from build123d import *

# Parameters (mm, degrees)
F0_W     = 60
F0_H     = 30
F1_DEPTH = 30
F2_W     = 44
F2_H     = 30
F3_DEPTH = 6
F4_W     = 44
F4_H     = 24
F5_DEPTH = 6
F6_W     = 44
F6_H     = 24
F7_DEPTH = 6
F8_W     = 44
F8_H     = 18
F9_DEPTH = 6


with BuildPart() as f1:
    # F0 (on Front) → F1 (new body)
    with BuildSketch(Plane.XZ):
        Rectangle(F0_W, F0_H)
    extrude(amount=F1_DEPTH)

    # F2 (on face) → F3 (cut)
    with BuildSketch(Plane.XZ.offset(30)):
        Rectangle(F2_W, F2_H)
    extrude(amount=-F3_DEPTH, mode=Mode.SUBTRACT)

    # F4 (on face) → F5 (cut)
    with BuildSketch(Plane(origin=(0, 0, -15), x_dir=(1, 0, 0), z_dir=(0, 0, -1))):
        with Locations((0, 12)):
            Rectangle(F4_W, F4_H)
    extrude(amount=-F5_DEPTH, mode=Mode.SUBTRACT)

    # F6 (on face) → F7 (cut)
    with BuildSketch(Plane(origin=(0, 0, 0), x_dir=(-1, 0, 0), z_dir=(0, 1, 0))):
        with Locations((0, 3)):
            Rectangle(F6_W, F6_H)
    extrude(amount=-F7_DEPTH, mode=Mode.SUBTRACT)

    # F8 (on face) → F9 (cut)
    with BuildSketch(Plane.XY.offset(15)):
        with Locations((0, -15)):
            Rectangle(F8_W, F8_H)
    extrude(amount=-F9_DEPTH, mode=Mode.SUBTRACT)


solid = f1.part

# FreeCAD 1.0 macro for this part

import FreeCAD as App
import Part
import Sketcher

V = App.Vector
Q = App.Units.Quantity

doc = App.newDocument("Part")
body = doc.addObject("PartDesign::Body", "Body")

sketch1 = body.newObject("Sketcher::SketchObject", "Sketch")
sketch1.AttachmentSupport = (doc.getObject("XZ_Plane"), [""])
sketch1.MapMode = "FlatFace"
sketch1.addGeometry([
    Part.LineSegment(V(-30, 15, 0), V(-30, -15, 0)),
    Part.LineSegment(V(-30, -15, 0), V(30, -15, 0)),
    Part.LineSegment(V(30, -15, 0), V(30, 15, 0)),
    Part.LineSegment(V(30, 15, 0), V(-30, 15, 0)),
], False)
sketch1.addConstraint([
    Sketcher.Constraint("Coincident", 0, 2, 1, 1),
    Sketcher.Constraint("Coincident", 1, 2, 2, 1),
    Sketcher.Constraint("Coincident", 2, 2, 3, 1),
    Sketcher.Constraint("Coincident", 3, 2, 0, 1),
    Sketcher.Constraint("Vertical", 0),
    Sketcher.Constraint("Horizontal", 1),
    Sketcher.Constraint("Vertical", 2),
    Sketcher.Constraint("Horizontal", 3),
    Sketcher.Constraint("Symmetric", 0, 2, 2, 2, -1, 1),
    Sketcher.Constraint("DistanceX", 1, 1, 1, 2, Q("60 mm")),
    Sketcher.Constraint("DistanceY", 0, 2, 0, 1, Q("30 mm")),
])
pad1 = body.newObject("PartDesign::Pad", "Pad")
pad1.Profile = sketch1
pad1.Length = 30

sketch2 = body.newObject("Sketcher::SketchObject", "Sketch001")
sketch2.AttachmentSupport = (doc.getObject("XZ_Plane"), [""])
sketch2.MapMode = "FlatFace"
sketch2.AttachmentOffset = App.Placement(V(0, 0, 30), App.Rotation())
sketch2.addGeometry([
    Part.LineSegment(V(-22, 15, 0), V(-22, -15, 0)),
    Part.LineSegment(V(-22, -15, 0), V(22, -15, 0)),
    Part.LineSegment(V(22, -15, 0), V(22, 15, 0)),
    Part.LineSegment(V(22, 15, 0), V(-22, 15, 0)),
], False)
sketch2.addConstraint([
    Sketcher.Constraint("Coincident", 0, 2, 1, 1),
    Sketcher.Constraint("Coincident", 1, 2, 2, 1),
    Sketcher.Constraint("Coincident", 2, 2, 3, 1),
    Sketcher.Constraint("Coincident", 3, 2, 0, 1),
    Sketcher.Constraint("Vertical", 0),
    Sketcher.Constraint("Horizontal", 1),
    Sketcher.Constraint("Vertical", 2),
    Sketcher.Constraint("Horizontal", 3),
    Sketcher.Constraint("Symmetric", 0, 2, 2, 2, -1, 1),
    Sketcher.Constraint("DistanceX", 1, 1, 1, 2, Q("44 mm")),
    Sketcher.Constraint("DistanceY", 0, 2, 0, 1, Q("30 mm")),
])
pocket1 = body.newObject("PartDesign::Pocket", "Pocket")
pocket1.Profile = sketch2
pocket1.Length = 6

sketch3 = body.newObject("Sketcher::SketchObject", "Sketch002")
sketch3.AttachmentSupport = (doc.getObject("XY_Plane"), [""])
sketch3.MapMode = "FlatFace"
sketch3.AttachmentOffset = App.Placement(V(0, 0, -15), App.Rotation())
sketch3.addGeometry([
    Part.LineSegment(V(-22, -24, 0), V(-22, 0, 0)),
    Part.LineSegment(V(-22, 0, 0), V(22, 0, 0)),
    Part.LineSegment(V(22, 0, 0), V(22, -24, 0)),
    Part.LineSegment(V(22, -24, 0), V(-22, -24, 0)),
], False)
sketch3.addConstraint([
    Sketcher.Constraint("Coincident", 0, 2, 1, 1),
    Sketcher.Constraint("Coincident", 1, 2, 2, 1),
    Sketcher.Constraint("Coincident", 2, 2, 3, 1),
    Sketcher.Constraint("Coincident", 3, 2, 0, 1),
    Sketcher.Constraint("Vertical", 0),
    Sketcher.Constraint("Horizontal", 1),
    Sketcher.Constraint("Vertical", 2),
    Sketcher.Constraint("Horizontal", 3),
    Sketcher.Constraint("Symmetric", 0, 2, 1, 2, -1, 1),
    Sketcher.Constraint("DistanceX", 1, 1, 1, 2, Q("44 mm")),
    Sketcher.Constraint("DistanceY", 0, 1, 0, 2, Q("24 mm")),
])
pocket2 = body.newObject("PartDesign::Pocket", "Pocket001")
pocket2.Profile = sketch3
pocket2.Length = 6
pocket2.Reversed = True

sketch4 = body.newObject("Sketcher::SketchObject", "Sketch003")
sketch4.AttachmentSupport = (doc.getObject("XZ_Plane"), [""])
sketch4.MapMode = "FlatFace"
sketch4.addGeometry([
    Part.LineSegment(V(22, 15, 0), V(22, -9, 0)),
    Part.LineSegment(V(22, -9, 0), V(-22, -9, 0)),
    Part.LineSegment(V(-22, -9, 0), V(-22, 15, 0)),
    Part.LineSegment(V(-22, 15, 0), V(22, 15, 0)),
], False)
sketch4.addConstraint([
    Sketcher.Constraint("Coincident", 0, 2, 1, 1),
    Sketcher.Constraint("Coincident", 1, 2, 2, 1),
    Sketcher.Constraint("Coincident", 2, 2, 3, 1),
    Sketcher.Constraint("Coincident", 3, 2, 0, 1),
    Sketcher.Constraint("Vertical", 0),
    Sketcher.Constraint("Horizontal", 1),
    Sketcher.Constraint("Vertical", 2),
    Sketcher.Constraint("Horizontal", 3),
    Sketcher.Constraint("DistanceX", 1, 2, 1, 1, Q("44 mm")),
    Sketcher.Constraint("DistanceY", 0, 2, 0, 1, Q("24 mm")),
    Sketcher.Constraint("DistanceX", -1, 1, 0, 2, Q("22 mm")),
    Sketcher.Constraint("DistanceY", 0, 2, -1, 1, Q("9 mm")),
])
pocket3 = body.newObject("PartDesign::Pocket", "Pocket002")
pocket3.Profile = sketch4
pocket3.Length = 6
pocket3.Reversed = True

sketch5 = body.newObject("Sketcher::SketchObject", "Sketch004")
sketch5.AttachmentSupport = (doc.getObject("XY_Plane"), [""])
sketch5.MapMode = "FlatFace"
sketch5.AttachmentOffset = App.Placement(V(0, 0, 15), App.Rotation())
sketch5.addGeometry([
    Part.LineSegment(V(-22, -6, 0), V(-22, -24, 0)),
    Part.LineSegment(V(-22, -24, 0), V(22, -24, 0)),
    Part.LineSegment(V(22, -24, 0), V(22, -6, 0)),
    Part.LineSegment(V(22, -6, 0), V(-22, -6, 0)),
], False)
sketch5.addConstraint([
    Sketcher.Constraint("Coincident", 0, 2, 1, 1),
    Sketcher.Constraint("Coincident", 1, 2, 2, 1),
    Sketcher.Constraint("Coincident", 2, 2, 3, 1),
    Sketcher.Constraint("Coincident", 3, 2, 0, 1),
    Sketcher.Constraint("Vertical", 0),
    Sketcher.Constraint("Horizontal", 1),
    Sketcher.Constraint("Vertical", 2),
    Sketcher.Constraint("Horizontal", 3),
    Sketcher.Constraint("DistanceX", 1, 1, 1, 2, Q("44 mm")),
    Sketcher.Constraint("DistanceY", 0, 2, 0, 1, Q("18 mm")),
    Sketcher.Constraint("DistanceX", 0, 2, -1, 1, Q("22 mm")),
    Sketcher.Constraint("DistanceY", 0, 2, -1, 1, Q("24 mm")),
])
pocket4 = body.newObject("PartDesign::Pocket", "Pocket003")
pocket4.Profile = sketch5
pocket4.Length = 6

doc.recompute()
